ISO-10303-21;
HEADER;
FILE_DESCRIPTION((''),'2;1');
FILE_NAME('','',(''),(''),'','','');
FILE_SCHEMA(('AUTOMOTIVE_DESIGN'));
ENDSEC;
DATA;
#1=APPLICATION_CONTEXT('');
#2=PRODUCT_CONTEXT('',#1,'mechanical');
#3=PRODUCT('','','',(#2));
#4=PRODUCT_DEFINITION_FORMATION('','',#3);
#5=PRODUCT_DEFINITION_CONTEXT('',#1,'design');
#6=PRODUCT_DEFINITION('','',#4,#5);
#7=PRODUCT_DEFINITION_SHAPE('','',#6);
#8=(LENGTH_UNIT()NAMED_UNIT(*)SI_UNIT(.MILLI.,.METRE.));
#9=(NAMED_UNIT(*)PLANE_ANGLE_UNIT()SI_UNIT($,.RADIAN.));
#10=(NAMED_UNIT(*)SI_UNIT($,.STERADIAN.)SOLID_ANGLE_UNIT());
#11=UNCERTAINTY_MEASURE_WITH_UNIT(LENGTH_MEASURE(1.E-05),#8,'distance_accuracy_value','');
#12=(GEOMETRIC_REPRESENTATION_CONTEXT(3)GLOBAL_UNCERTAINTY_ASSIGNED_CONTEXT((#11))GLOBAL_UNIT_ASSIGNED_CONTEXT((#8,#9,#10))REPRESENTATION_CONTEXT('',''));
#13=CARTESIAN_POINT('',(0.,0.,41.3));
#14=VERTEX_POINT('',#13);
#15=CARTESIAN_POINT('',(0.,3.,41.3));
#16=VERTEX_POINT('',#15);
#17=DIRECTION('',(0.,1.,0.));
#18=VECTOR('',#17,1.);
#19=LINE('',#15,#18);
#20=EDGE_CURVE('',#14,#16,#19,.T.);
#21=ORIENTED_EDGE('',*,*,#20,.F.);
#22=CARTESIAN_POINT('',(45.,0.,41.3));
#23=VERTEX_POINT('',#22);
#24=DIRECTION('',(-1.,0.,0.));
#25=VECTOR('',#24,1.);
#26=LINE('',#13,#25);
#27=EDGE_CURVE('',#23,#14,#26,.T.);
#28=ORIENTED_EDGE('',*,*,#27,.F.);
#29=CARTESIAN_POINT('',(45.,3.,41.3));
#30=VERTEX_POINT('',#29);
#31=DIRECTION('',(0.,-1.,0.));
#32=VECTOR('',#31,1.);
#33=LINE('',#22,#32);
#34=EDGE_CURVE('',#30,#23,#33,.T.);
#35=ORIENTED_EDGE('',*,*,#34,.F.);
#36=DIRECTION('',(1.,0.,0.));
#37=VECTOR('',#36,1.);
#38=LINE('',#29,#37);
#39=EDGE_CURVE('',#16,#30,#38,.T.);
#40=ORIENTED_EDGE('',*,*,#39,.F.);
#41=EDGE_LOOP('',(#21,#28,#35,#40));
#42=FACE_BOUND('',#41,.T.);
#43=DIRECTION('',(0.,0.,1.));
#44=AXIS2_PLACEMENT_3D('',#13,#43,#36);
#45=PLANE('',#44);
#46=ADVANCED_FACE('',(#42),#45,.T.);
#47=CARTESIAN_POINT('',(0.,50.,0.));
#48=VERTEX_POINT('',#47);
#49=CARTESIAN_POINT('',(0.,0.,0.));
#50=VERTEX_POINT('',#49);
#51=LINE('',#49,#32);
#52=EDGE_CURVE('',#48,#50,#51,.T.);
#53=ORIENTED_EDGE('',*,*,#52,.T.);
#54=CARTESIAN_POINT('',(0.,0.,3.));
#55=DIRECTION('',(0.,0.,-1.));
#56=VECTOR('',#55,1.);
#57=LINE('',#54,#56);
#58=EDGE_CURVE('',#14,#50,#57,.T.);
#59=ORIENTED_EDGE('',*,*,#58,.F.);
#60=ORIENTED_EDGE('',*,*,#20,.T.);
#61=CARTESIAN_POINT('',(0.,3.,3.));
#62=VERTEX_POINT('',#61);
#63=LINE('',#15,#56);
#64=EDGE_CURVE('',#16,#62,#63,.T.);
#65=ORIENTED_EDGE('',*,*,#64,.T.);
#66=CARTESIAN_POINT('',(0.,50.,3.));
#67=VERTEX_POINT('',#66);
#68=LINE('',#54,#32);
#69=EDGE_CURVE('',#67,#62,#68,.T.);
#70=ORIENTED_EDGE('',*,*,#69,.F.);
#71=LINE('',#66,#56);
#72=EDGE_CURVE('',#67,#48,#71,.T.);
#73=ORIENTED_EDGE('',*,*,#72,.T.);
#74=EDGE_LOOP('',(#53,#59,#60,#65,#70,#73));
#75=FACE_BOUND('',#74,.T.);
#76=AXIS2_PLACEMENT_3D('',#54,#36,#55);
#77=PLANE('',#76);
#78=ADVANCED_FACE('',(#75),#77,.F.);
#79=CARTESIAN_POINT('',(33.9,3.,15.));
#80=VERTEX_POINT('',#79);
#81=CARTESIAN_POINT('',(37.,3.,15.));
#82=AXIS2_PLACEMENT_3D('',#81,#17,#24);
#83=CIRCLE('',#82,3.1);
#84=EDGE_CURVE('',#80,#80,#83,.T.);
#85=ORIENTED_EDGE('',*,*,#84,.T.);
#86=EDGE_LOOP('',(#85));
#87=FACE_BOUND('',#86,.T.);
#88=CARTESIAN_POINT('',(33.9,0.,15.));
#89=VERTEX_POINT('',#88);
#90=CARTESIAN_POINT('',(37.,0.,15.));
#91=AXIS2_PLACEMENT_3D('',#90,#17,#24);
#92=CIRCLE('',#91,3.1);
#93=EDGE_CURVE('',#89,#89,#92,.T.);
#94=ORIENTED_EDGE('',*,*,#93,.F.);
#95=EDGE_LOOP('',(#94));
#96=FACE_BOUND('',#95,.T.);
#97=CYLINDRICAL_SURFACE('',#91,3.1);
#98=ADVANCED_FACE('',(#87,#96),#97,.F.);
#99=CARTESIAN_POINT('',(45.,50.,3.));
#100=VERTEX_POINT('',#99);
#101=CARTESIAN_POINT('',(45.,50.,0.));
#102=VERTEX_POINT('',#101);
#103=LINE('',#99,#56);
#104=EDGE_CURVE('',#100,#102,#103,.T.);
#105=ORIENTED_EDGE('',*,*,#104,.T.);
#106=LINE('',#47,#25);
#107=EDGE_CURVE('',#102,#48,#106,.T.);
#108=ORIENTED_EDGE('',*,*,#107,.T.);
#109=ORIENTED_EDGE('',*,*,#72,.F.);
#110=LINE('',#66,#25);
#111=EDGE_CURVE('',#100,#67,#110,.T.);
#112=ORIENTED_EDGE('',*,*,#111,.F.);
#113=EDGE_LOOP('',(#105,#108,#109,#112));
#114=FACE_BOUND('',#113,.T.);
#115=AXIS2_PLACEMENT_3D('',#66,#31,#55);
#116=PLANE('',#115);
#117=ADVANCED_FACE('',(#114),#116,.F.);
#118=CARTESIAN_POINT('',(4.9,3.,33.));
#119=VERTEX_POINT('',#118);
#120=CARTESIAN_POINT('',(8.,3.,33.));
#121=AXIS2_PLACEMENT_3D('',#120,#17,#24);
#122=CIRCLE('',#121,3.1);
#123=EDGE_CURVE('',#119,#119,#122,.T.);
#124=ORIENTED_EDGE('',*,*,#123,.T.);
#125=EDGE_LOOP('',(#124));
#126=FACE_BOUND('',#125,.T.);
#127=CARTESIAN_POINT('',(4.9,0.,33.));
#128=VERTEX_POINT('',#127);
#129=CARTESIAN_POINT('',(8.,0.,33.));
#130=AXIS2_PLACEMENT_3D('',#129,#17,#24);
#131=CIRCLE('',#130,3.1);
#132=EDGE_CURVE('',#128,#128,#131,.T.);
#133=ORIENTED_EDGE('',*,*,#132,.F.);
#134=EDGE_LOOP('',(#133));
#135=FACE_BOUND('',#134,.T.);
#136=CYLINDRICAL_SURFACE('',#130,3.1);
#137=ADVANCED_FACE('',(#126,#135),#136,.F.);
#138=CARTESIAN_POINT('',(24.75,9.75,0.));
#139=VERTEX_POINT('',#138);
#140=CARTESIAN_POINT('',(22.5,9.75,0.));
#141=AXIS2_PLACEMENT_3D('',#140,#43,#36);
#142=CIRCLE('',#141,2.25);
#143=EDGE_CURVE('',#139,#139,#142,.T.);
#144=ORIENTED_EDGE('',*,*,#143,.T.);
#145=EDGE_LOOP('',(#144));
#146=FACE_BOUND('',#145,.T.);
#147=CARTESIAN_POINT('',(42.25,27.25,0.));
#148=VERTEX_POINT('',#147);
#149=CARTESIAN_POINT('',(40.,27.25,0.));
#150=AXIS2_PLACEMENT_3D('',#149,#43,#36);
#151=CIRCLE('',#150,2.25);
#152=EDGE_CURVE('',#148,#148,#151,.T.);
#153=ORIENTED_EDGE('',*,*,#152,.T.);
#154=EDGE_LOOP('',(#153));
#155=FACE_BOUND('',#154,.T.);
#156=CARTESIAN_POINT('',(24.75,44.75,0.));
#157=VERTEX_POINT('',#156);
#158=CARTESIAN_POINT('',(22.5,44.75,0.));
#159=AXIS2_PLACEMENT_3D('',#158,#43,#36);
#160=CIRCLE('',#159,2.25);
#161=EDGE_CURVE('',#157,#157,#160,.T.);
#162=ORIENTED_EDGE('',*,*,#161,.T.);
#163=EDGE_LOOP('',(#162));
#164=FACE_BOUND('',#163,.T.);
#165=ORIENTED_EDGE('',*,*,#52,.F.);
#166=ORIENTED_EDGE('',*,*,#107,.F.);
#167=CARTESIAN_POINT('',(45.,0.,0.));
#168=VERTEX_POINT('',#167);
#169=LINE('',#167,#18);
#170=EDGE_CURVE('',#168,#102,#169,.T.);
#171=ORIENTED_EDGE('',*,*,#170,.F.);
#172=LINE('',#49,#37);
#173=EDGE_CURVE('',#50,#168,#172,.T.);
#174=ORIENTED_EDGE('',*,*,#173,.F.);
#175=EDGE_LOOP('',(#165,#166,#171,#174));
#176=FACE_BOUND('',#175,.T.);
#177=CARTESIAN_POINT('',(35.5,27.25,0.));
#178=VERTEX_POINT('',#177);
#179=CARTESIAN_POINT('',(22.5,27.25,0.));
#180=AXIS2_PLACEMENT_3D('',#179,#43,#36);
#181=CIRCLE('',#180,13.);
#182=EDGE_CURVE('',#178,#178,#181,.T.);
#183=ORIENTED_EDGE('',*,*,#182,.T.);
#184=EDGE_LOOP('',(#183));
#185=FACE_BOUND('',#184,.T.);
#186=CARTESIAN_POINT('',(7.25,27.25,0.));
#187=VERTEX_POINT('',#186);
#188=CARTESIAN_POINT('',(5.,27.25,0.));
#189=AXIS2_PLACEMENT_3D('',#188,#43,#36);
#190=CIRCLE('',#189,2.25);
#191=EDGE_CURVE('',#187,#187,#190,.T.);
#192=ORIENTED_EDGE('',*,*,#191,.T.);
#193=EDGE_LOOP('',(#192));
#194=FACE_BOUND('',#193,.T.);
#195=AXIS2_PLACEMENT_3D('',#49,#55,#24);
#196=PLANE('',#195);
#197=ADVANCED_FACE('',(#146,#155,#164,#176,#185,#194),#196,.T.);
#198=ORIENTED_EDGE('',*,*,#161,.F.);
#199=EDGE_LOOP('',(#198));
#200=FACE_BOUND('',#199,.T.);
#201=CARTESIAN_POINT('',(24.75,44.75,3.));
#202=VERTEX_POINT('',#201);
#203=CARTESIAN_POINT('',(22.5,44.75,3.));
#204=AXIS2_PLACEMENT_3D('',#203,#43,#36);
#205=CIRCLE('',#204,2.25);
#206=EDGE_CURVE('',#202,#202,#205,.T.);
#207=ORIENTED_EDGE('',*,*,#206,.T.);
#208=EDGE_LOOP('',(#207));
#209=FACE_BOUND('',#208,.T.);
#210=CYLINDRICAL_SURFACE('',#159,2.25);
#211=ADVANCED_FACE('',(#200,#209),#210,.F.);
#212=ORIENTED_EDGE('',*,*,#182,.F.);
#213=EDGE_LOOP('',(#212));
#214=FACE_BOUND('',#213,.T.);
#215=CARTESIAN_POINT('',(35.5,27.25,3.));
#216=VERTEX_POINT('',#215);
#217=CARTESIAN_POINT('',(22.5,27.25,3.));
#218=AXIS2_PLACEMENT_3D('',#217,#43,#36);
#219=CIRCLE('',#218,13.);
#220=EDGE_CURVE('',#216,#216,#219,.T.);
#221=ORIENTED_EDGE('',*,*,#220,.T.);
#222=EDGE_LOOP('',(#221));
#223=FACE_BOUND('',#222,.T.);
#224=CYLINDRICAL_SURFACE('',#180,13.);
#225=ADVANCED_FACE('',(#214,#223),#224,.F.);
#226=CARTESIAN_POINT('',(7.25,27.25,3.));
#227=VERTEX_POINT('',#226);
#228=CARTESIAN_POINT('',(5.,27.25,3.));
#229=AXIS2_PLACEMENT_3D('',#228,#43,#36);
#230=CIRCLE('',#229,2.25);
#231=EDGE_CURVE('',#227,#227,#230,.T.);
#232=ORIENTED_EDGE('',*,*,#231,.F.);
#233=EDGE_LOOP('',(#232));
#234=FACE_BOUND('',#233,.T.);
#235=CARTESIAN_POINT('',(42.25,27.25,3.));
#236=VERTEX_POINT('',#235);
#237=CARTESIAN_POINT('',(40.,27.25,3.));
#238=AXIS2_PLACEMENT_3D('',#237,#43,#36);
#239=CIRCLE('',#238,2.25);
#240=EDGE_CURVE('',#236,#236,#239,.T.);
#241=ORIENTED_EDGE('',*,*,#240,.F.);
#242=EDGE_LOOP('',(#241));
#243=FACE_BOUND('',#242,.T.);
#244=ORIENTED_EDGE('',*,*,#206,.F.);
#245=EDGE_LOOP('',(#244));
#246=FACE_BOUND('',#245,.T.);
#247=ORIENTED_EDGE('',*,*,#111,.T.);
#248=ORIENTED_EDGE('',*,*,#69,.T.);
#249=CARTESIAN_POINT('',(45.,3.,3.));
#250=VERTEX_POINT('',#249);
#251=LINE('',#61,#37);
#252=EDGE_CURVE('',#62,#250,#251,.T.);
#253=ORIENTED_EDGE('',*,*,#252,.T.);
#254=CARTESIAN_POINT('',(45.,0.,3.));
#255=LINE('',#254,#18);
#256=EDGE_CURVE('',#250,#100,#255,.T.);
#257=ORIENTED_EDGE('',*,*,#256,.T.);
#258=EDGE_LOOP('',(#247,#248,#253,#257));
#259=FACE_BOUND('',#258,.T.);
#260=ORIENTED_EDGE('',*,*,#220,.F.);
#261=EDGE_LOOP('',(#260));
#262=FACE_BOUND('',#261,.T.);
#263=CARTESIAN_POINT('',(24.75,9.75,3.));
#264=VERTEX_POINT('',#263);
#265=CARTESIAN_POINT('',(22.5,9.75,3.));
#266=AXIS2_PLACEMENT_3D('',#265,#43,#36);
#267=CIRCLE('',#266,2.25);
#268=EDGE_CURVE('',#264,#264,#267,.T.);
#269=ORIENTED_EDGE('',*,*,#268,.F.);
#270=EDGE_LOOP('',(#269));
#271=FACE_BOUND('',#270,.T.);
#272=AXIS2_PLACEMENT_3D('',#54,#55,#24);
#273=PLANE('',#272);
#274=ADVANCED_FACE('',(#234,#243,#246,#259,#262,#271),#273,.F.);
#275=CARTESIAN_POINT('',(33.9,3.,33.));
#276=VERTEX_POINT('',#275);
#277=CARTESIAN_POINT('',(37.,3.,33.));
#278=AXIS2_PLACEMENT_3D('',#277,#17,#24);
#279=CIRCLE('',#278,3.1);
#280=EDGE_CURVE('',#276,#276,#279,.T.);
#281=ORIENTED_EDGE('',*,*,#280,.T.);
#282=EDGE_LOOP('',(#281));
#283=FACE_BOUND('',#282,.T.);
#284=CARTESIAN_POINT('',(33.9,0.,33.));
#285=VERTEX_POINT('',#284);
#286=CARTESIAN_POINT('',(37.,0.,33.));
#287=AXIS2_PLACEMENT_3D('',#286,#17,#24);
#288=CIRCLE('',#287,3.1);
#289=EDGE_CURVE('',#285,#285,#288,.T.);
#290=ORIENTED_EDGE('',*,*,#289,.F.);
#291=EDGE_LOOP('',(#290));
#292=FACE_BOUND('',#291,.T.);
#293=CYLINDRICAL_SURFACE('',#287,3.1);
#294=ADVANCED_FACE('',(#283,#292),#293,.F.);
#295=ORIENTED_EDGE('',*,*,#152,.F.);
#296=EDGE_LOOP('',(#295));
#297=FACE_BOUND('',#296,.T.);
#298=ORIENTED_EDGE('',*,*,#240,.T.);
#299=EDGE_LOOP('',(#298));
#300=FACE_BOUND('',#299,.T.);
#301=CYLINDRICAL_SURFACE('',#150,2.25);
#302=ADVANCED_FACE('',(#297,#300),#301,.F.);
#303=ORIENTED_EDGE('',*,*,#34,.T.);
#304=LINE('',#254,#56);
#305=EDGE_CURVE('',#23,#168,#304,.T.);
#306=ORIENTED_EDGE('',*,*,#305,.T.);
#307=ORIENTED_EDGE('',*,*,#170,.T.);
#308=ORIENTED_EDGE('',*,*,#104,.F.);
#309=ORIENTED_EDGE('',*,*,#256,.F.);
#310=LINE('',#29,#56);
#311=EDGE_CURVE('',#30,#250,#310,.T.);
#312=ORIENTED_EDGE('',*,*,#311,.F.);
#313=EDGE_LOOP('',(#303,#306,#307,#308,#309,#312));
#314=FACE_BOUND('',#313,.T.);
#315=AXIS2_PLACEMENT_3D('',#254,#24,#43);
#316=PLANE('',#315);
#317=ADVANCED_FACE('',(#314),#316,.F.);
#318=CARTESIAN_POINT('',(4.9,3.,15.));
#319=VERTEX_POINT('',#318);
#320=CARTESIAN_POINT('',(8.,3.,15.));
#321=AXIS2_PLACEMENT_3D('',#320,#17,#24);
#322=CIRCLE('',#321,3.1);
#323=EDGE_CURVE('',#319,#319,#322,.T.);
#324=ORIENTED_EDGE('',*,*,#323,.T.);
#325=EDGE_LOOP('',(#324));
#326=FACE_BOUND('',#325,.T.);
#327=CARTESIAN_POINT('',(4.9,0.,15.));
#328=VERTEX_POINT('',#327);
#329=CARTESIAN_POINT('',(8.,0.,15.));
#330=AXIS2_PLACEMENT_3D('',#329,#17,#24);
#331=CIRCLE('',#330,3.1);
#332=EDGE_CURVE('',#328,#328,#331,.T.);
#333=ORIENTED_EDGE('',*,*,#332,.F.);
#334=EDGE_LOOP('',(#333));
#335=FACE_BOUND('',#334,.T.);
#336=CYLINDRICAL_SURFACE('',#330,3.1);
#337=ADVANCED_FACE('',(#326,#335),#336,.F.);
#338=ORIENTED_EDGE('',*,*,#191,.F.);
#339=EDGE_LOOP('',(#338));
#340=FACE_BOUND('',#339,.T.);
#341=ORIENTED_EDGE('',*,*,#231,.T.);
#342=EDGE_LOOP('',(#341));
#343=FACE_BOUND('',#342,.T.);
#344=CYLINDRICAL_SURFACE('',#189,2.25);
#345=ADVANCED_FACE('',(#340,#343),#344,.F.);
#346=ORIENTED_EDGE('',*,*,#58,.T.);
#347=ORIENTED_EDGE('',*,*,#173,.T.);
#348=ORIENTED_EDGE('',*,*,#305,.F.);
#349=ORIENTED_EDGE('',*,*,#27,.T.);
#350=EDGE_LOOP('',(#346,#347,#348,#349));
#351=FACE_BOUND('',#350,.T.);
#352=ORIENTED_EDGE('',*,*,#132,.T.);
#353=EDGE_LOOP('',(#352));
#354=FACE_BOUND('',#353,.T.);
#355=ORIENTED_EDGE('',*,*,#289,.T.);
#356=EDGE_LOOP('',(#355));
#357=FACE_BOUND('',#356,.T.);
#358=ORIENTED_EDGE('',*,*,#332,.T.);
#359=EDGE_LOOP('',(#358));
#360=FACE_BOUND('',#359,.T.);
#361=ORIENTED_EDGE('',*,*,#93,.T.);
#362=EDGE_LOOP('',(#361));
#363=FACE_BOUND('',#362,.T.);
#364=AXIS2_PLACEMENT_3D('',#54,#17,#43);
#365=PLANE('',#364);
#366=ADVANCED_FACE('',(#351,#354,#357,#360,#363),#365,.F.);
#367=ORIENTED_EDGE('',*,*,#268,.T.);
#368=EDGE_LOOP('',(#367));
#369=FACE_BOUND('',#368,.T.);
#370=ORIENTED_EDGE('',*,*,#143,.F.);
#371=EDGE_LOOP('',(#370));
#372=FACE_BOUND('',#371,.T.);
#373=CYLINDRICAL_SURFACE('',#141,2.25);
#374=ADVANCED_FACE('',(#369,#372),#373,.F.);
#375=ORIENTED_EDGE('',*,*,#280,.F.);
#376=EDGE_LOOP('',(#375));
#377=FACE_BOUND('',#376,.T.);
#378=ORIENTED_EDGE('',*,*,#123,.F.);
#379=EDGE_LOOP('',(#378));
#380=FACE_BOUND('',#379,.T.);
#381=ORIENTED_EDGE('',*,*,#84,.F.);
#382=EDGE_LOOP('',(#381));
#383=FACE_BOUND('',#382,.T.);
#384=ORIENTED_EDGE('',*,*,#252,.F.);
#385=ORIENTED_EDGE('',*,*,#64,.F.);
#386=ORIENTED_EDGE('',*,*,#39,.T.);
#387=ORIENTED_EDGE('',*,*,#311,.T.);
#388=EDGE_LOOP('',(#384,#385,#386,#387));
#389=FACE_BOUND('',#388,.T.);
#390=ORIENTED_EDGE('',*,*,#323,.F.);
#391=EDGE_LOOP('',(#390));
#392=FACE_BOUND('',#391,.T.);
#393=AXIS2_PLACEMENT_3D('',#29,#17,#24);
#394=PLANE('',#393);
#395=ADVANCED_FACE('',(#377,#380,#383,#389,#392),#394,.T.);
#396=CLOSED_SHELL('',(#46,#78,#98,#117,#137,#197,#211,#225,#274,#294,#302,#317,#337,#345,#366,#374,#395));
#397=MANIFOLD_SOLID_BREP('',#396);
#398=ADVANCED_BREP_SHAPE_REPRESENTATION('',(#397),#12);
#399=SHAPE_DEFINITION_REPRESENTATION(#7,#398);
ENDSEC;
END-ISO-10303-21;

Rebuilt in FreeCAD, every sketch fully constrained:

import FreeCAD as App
import Part
import Sketcher

doc = App.newDocument("Part")
body = doc.addObject("PartDesign::Body", "Body")

# Sketch on XY plane
sketch1 = body.newObject("Sketcher::SketchObject", "Sketch")
sketch1.AttachmentSupport = (doc.getObject("XY_Plane"), [""])
sketch1.MapMode = "FlatFace"
sketch1.addGeometry(Part.LineSegment(App.Vector(0, 50, 0), App.Vector(0, 0, 0)), False)
sketch1.addGeometry(Part.LineSegment(App.Vector(0, 0, 0), App.Vector(45, 0, 0)), False)
sketch1.addGeometry(Part.LineSegment(App.Vector(45, 0, 0), App.Vector(45, 50, 0)), False)
sketch1.addGeometry(Part.LineSegment(App.Vector(45, 50, 0), App.Vector(0, 50, 0)), False)
sketch1.addConstraint(Sketcher.Constraint("Coincident", 0, 2, 1, 1))
sketch1.addConstraint(Sketcher.Constraint("Coincident", 1, 2, 2, 1))
sketch1.addConstraint(Sketcher.Constraint("Coincident", 2, 2, 3, 1))
sketch1.addConstraint(Sketcher.Constraint("Coincident", 3, 2, 0, 1))
sketch1.addConstraint(Sketcher.Constraint("Vertical", 0))
sketch1.addConstraint(Sketcher.Constraint("Horizontal", 1))
sketch1.addConstraint(Sketcher.Constraint("Vertical", 2))
sketch1.addConstraint(Sketcher.Constraint("Horizontal", 3))
sketch1.addConstraint(Sketcher.Constraint("Coincident", 0, 2, -1, 1))
sketch1.addConstraint(Sketcher.Constraint("DistanceX", 1, 1, 1, 2, 45.0))
sketch1.addConstraint(Sketcher.Constraint("DistanceY", 0, 2, 0, 1, 50.0))
pad1 = body.newObject("PartDesign::Pad", "Pad")
pad1.Profile = sketch1
pad1.Length = 3

# Sketch on XY plane
sketch2 = body.newObject("Sketcher::SketchObject", "Sketch001")
sketch2.AttachmentSupport = (doc.getObject("XY_Plane"), [""])
sketch2.MapMode = "FlatFace"
sketch2.addGeometry(Part.LineSegment(App.Vector(45, 3, 0), App.Vector(45, 0, 0)), False)
sketch2.addGeometry(Part.LineSegment(App.Vector(45, 0, 0), App.Vector(0, 0, 0)), False)
sketch2.addGeometry(Part.LineSegment(App.Vector(0, 0, 0), App.Vector(0, 3, 0)), False)
sketch2.addGeometry(Part.LineSegment(App.Vector(0, 3, 0), App.Vector(45, 3, 0)), False)
sketch2.addConstraint(Sketcher.Constraint("Coincident", 0, 2, 1, 1))
sketch2.addConstraint(Sketcher.Constraint("Coincident", 1, 2, 2, 1))
sketch2.addConstraint(Sketcher.Constraint("Coincident", 2, 2, 3, 1))
sketch2.addConstraint(Sketcher.Constraint("Coincident", 3, 2, 0, 1))
sketch2.addConstraint(Sketcher.Constraint("Vertical", 0))
sketch2.addConstraint(Sketcher.Constraint("Horizontal", 1))
sketch2.addConstraint(Sketcher.Constraint("Vertical", 2))
sketch2.addConstraint(Sketcher.Constraint("Horizontal", 3))
sketch2.addConstraint(Sketcher.Constraint("Coincident", 1, 2, -1, 1))
sketch2.addConstraint(Sketcher.Constraint("DistanceX", 1, 2, 1, 1, 45.0))
sketch2.addConstraint(Sketcher.Constraint("DistanceY", 0, 2, 0, 1, 3.0))
pad2 = body.newObject("PartDesign::Pad", "Pad001")
pad2.Profile = sketch2
pad2.Length = 41.3

# Sketch on XY plane
sketch3 = body.newObject("Sketcher::SketchObject", "Sketch002")
sketch3.AttachmentSupport = (doc.getObject("XY_Plane"), [""])
sketch3.MapMode = "FlatFace"
sketch3.AttachmentOffset = App.Placement(App.Vector(0, 0, 3), App.Rotation())
sketch3.addGeometry(Part.Circle(App.Vector(22.5, 27.2, 0), App.Vector(0, 0, 1), 13), False)
sketch3.addGeometry(Part.Circle(App.Vector(22.5, 44.8, 0), App.Vector(0, 0, 1), 2.2), False)
sketch3.addGeometry(Part.Circle(App.Vector(40, 27.2, 0), App.Vector(0, 0, 1), 2.2), False)
sketch3.addGeometry(Part.Circle(App.Vector(22.5, 9.8, 0), App.Vector(0, 0, 1), 2.2), False)
sketch3.addGeometry(Part.Circle(App.Vector(5, 27.2, 0), App.Vector(0, 0, 1), 2.2), False)
sketch3.addConstraint(Sketcher.Constraint("Equal", 1, 2))
sketch3.addConstraint(Sketcher.Constraint("Equal", 2, 3))
sketch3.addConstraint(Sketcher.Constraint("Equal", 3, 4))
sketch3.addConstraint(Sketcher.Constraint("Horizontal", 0, 3, 2, 3))
sketch3.addConstraint(Sketcher.Constraint("Horizontal", 2, 3, 4, 3))
sketch3.addConstraint(Sketcher.Constraint("Vertical", 0, 3, 1, 3))
sketch3.addConstraint(Sketcher.Constraint("Vertical", 1, 3, 3, 3))
sketch3.addConstraint(Sketcher.Constraint("Diameter", 0, 26.0))
sketch3.addConstraint(Sketcher.Constraint("Diameter", 1, 4.5))
sketch3.addConstraint(Sketcher.Constraint("DistanceX", -1, 1, 2, 3, 40.0))
sketch3.addConstraint(Sketcher.Constraint("DistanceX", -1, 1, 4, 3, 5.0))
sketch3.addConstraint(Sketcher.Constraint("DistanceY", 3, 3, 1, 3, 35.0))
sketch3.addConstraint(Sketcher.Constraint("DistanceX", -1, 1, 0, 3, 22.5))
sketch3.addConstraint(Sketcher.Constraint("DistanceY", 0, 3, 1, 3, 17.5))
sketch3.addConstraint(Sketcher.Constraint("DistanceY", -1, 1, 0, 3, 27.25))
pocket1 = body.newObject("PartDesign::Pocket", "Pocket")
pocket1.Profile = sketch3
pocket1.Type = "ThroughAll"

# Sketch on XZ plane
sketch4 = body.newObject("Sketcher::SketchObject", "Sketch003")
sketch4.AttachmentSupport = (doc.getObject("XZ_Plane"), [""])
sketch4.MapMode = "FlatFace"
sketch4.AttachmentOffset = App.Placement(App.Vector(0, 0, -3), App.Rotation())
sketch4.addGeometry(Part.Circle(App.Vector(37, 15, 0), App.Vector(0, 0, 1), 3.1), False)
sketch4.addGeometry(Part.Circle(App.Vector(37, 33, 0), App.Vector(0, 0, 1), 3.1), False)
sketch4.addGeometry(Part.Circle(App.Vector(8, 33, 0), App.Vector(0, 0, 1), 3.1), False)
sketch4.addGeometry(Part.Circle(App.Vector(8, 15, 0), App.Vector(0, 0, 1), 3.1), False)
sketch4.addConstraint(Sketcher.Constraint("Equal", 0, 1))
sketch4.addConstraint(Sketcher.Constraint("Equal", 1, 2))
sketch4.addConstraint(Sketcher.Constraint("Equal", 2, 3))
sketch4.addConstraint(Sketcher.Constraint("Horizontal", 1, 3, 2, 3))
sketch4.addConstraint(Sketcher.Constraint("Horizontal", 0, 3, 3, 3))
sketch4.addConstraint(Sketcher.Constraint("Vertical", 0, 3, 1, 3))
sketch4.addConstraint(Sketcher.Constraint("Vertical", 2, 3, 3, 3))
sketch4.addConstraint(Sketcher.Constraint("Diameter", 0, 6.2))
sketch4.addConstraint(Sketcher.Constraint("DistanceX", -1, 1, 0, 3, 37.0))
sketch4.addConstraint(Sketcher.Constraint("DistanceY", -1, 1, 0, 3, 15.0))
sketch4.addConstraint(Sketcher.Constraint("DistanceY", -1, 1, 1, 3, 33.0))
sketch4.addConstraint(Sketcher.Constraint("DistanceX", -1, 1, 2, 3, 8.0))
pocket2 = body.newObject("PartDesign::Pocket", "Pocket001")
pocket2.Profile = sketch4
pocket2.Type = "ThroughAll"
pocket2.Reversed = True

doc.recompute()
